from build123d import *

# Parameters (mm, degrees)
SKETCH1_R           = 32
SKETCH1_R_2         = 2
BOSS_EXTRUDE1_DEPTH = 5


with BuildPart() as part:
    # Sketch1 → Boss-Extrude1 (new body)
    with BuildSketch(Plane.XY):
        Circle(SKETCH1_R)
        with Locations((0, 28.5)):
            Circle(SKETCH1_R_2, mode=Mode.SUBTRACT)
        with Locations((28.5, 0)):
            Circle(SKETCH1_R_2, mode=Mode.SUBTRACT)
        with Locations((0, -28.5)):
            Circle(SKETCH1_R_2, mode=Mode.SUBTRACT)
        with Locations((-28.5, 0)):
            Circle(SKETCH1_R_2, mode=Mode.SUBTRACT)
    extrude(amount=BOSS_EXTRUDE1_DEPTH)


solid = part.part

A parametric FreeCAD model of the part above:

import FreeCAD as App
import Part
import Sketcher
Q = App.Units.Quantity

doc = App.newDocument("Part")
body = doc.addObject("PartDesign::Body", "Body")

# Sketch on XY plane
sketch1 = body.newObject("Sketcher::SketchObject", "Sketch")
sketch1.AttachmentSupport = (doc.getObject("XY_Plane"), [""])
sketch1.MapMode = "FlatFace"
sketch1.addGeometry(Part.Circle(App.Vector(0, 0, 0), App.Vector(0, 0, 1), 32), False)
sketch1.addGeometry(Part.Circle(App.Vector(0, -28.5, 0), App.Vector(0, 0, 1), 2), False)
sketch1.addGeometry(Part.Circle(App.Vector(-28.5, 0, 0), App.Vector(0, 0, 1), 2), False)
sketch1.addGeometry(Part.Circle(App.Vector(28.5, 0, 0), App.Vector(0, 0, 1), 2), False)
sketch1.addGeometry(Part.Circle(App.Vector(0, 28.5, 0), App.Vector(0, 0, 1), 2), False)
sketch1.addConstraint(Sketcher.Constraint("Coincident", 0, 3, -1, 1))
sketch1.addConstraint(Sketcher.Constraint("Equal", 1, 2))
sketch1.addConstraint(Sketcher.Constraint("Equal", 2, 3))
sketch1.addConstraint(Sketcher.Constraint("Equal", 3, 4))
sketch1.addConstraint(Sketcher.Constraint("Symmetric", 2, 3, 3, 3, -1, 1))
sketch1.addConstraint(Sketcher.Constraint("Symmetric", 1, 3, 4, 3, -1, 1))
sketch1.addConstraint(Sketcher.Constraint("PointOnObject", 1, 3, -2))
sketch1.addConstraint(Sketcher.Constraint("PointOnObject", 2, 3, -1))
sketch1.addConstraint(Sketcher.Constraint("Diameter", 0, Q("64 mm")))
sketch1.addConstraint(Sketcher.Constraint("Diameter", 1, Q("4 mm")))
sketch1.addConstraint(Sketcher.Constraint("DistanceX", 2, 3, 3, 3, Q("57 mm")))
sketch1.addConstraint(Sketcher.Constraint("DistanceY", 1, 3, 4, 3, Q("57 mm")))
pad1 = body.newObject("PartDesign::Pad", "Pad")
pad1.Profile = sketch1
pad1.Length = 5

doc.recompute()
